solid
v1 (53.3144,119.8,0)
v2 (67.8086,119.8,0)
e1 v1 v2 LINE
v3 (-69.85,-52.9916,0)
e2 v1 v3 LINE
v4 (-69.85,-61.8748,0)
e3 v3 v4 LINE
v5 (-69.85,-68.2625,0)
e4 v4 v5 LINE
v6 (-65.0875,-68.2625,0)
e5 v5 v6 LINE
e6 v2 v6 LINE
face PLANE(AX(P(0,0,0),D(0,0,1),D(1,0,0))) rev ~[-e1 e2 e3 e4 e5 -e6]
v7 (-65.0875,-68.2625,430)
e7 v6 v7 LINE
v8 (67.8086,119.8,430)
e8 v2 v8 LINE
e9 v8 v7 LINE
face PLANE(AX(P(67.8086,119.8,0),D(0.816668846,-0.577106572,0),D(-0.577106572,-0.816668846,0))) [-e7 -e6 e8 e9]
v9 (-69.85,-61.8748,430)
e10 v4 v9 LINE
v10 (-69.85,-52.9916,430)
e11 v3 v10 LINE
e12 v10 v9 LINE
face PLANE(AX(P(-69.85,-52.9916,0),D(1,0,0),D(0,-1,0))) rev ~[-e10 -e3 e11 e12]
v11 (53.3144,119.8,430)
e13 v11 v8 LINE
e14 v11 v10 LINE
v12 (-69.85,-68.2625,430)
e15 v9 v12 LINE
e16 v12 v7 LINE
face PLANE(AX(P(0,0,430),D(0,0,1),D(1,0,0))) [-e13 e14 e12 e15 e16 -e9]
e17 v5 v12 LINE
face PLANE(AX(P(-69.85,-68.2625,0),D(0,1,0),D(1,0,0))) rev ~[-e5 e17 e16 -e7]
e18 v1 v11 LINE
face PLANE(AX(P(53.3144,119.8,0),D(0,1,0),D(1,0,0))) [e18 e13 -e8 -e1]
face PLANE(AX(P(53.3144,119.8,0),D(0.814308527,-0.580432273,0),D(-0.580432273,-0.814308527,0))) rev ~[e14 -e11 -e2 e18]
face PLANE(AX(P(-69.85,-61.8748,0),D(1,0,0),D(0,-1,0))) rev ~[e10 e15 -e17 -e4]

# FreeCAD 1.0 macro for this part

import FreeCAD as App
import Part
import Sketcher

V = App.Vector
Q = App.Units.Quantity

doc = App.newDocument("Part")
params = doc.addObject("Spreadsheet::Sheet", "Params")
for row, (alias, value) in enumerate([
    ("sketch1_length", "230.28 mm"),
    ("pad1_length", "430 mm"),
], start=1):
    params.set(f"A{row}", alias)
    params.set(f"B{row}", "=" + value)
    params.setAlias(f"B{row}", alias)

body = doc.addObject("PartDesign::Body", "Body")

sketch1 = body.newObject("Sketcher::SketchObject", "Sketch")
sketch1.AttachmentSupport = (doc.getObject("XY_Plane"), [""])
sketch1.MapMode = "FlatFace"
sketch1.addGeometry([
    Part.LineSegment(V(67.8, 119.8, 0), V(53.3, 119.8, 0)),
    Part.LineSegment(V(53.3, 119.8, 0), V(-69.8, -53, 0)),
    Part.LineSegment(V(-69.8, -53, 0), V(-69.8, -68.3, 0)),
    Part.LineSegment(V(-69.8, -68.3, 0), V(-65.1, -68.3, 0)),
    Part.LineSegment(V(-65.1, -68.3, 0), V(67.8, 119.8, 0)),
], False)
sketch1.addConstraint([
    Sketcher.Constraint("Coincident", 0, 2, 1, 1),
    Sketcher.Constraint("Coincident", 1, 2, 2, 1),
    Sketcher.Constraint("Coincident", 2, 2, 3, 1),
    Sketcher.Constraint("Coincident", 3, 2, 4, 1),
    Sketcher.Constraint("Coincident", 4, 2, 0, 1),
    Sketcher.Constraint("Horizontal", 0),
    Sketcher.Constraint("Vertical", 2),
    Sketcher.Constraint("Horizontal", 3),
    Sketcher.Constraint("DistanceY", -1, 1, 0, 2, 119.8),
    Sketcher.Constraint("Angle", 1, Q("-125.481 deg")),
    Sketcher.Constraint("Distance", 4, 230.28),
    Sketcher.Constraint("DistanceY", 2, 2, 2, 1, 15.271),
    Sketcher.Constraint("DistanceX", 1, 2, -1, 1, 69.85),
    Sketcher.Constraint("DistanceX", 0, 2, 0, 1, 14.4942),
    Sketcher.Constraint("DistanceX", 3, 1, 3, 2, 4.7625),
])
sketch1.setExpression("Constraints[10]", "Params.sketch1_length")
pad1 = body.newObject("PartDesign::Pad", "Pad")
pad1.Profile = sketch1
pad1.setExpression("Length", "Params.pad1_length")

doc.recompute()
